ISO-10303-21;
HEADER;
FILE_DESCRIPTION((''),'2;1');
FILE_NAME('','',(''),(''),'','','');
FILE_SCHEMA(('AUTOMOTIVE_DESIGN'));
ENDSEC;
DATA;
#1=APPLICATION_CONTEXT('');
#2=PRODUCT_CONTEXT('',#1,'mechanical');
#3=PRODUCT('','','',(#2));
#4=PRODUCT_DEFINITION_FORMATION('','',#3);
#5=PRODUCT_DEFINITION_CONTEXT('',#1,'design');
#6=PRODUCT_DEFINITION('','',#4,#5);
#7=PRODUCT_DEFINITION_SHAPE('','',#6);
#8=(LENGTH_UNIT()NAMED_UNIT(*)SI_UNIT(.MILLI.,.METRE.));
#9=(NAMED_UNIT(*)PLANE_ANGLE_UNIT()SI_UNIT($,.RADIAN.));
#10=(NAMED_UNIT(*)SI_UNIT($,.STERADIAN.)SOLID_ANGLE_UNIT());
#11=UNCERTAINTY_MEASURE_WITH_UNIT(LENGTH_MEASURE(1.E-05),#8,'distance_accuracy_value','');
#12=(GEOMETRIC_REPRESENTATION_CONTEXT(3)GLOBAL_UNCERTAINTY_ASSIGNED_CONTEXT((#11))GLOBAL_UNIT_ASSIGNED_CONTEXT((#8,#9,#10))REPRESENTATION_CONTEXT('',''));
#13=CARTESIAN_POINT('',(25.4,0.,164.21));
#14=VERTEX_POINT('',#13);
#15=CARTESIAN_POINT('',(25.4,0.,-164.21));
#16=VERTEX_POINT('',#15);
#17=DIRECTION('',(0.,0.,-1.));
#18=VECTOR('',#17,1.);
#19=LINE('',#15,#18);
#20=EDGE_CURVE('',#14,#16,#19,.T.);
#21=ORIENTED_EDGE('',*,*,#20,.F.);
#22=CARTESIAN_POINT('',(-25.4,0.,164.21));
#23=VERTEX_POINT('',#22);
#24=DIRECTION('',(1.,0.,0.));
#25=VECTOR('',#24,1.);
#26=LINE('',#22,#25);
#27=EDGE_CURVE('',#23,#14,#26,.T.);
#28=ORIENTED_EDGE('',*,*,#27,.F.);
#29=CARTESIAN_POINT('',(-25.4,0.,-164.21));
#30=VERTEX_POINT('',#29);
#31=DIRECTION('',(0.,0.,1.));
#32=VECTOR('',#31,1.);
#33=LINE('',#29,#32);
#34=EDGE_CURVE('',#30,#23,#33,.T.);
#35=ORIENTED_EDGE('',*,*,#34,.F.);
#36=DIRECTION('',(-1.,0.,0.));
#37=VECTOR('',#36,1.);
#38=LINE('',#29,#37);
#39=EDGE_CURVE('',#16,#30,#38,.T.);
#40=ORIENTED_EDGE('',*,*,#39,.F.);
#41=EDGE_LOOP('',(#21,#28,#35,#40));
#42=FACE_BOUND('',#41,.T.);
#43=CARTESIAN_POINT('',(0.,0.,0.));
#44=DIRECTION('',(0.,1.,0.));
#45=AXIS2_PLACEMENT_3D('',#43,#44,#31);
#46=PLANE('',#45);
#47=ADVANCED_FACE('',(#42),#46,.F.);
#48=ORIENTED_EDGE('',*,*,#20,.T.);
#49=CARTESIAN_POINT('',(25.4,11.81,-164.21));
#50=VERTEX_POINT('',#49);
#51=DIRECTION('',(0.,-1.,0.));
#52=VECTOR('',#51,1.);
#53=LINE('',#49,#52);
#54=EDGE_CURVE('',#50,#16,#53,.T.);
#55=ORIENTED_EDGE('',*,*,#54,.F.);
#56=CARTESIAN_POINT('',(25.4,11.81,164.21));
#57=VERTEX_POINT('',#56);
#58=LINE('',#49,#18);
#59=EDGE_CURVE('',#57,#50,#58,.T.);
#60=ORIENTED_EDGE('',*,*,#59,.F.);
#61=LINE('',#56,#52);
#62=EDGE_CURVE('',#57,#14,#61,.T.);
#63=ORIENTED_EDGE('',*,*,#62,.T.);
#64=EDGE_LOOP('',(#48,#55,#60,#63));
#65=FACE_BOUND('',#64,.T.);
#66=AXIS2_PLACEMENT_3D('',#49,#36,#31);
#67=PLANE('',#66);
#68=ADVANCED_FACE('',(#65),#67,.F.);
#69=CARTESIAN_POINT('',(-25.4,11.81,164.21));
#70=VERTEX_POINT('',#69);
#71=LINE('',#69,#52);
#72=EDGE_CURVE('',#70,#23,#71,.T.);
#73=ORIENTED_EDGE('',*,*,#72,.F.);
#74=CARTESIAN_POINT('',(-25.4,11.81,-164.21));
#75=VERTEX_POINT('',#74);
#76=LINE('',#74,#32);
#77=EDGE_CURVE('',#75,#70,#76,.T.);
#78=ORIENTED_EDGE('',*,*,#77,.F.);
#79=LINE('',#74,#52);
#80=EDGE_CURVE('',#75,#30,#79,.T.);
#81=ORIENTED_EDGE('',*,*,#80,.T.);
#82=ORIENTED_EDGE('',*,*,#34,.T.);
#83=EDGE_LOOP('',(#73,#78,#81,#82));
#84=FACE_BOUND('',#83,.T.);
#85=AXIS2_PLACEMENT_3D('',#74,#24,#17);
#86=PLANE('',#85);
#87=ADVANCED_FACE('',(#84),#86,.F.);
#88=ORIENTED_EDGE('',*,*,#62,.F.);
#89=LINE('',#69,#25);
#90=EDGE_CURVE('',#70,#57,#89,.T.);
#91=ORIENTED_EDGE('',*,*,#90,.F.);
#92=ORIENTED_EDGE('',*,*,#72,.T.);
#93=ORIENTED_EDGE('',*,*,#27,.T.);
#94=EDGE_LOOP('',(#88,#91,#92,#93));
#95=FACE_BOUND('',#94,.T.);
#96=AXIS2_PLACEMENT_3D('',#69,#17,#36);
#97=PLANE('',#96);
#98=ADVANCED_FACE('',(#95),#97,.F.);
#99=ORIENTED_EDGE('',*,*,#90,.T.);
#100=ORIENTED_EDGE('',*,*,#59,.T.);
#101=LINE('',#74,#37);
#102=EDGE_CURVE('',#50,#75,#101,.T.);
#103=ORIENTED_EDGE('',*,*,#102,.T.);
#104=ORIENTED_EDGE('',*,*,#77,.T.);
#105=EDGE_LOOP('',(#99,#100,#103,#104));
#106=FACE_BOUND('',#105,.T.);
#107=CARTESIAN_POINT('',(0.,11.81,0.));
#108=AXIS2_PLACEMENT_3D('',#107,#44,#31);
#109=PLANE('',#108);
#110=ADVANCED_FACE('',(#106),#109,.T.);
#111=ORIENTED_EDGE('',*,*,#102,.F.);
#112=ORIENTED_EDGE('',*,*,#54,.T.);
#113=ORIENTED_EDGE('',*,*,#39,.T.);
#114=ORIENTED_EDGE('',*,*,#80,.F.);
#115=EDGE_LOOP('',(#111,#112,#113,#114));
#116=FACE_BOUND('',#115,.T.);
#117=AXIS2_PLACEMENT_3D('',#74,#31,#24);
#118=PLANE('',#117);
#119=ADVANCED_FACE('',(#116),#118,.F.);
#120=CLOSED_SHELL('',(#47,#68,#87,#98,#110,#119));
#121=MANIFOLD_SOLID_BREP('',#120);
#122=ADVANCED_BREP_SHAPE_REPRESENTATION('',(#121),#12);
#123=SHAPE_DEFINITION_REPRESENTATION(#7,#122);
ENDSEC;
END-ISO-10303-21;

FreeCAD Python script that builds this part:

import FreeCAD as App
import Part
import Sketcher
from FreeCAD import Vector
Q = App.Units.Quantity


def add_polygon(sketch, points):
    """Adds a closed chain of lines whose ends are joined by coincident constraints."""
    first, n = sketch.GeometryCount, len(points)
    for a, b in zip(points, points[1:] + points[:1]):
        sketch.addGeometry(Part.LineSegment(App.Vector(*a, 0), App.Vector(*b, 0)), False)
    for i in range(n):
        sketch.addConstraint(Sketcher.Constraint("Coincident", first + i, 2, first + (i + 1) % n, 1))

doc = App.newDocument("Part")
body = doc.addObject("PartDesign::Body", "Body")

sketch1 = doc.addObject("Sketcher::SketchObject", "Sketch")
body.addObject(sketch1)
sketch1.AttachmentSupport = (doc.XZ_Plane, [""])
sketch1.MapMode = "FlatFace"
add_polygon(sketch1, [(-25, -164), (-25, 164), (25, 164), (25, -164)])
sketch1.addConstraint([
    Sketcher.Constraint("Vertical", 0),
    Sketcher.Constraint("Horizontal", 1),
    Sketcher.Constraint("Vertical", 2),
    Sketcher.Constraint("Horizontal", 3),
    Sketcher.Constraint("Symmetric", 0, 2, 2, 2, -1, 1),
    Sketcher.Constraint("DistanceX", 1, 1, 1, 2, Q("2 in")),
    Sketcher.Constraint("DistanceY", 0, 1, 0, 2, Q("328.42 mm")),
])
pad1 = doc.addObject("PartDesign::Pad", "Pad")
body.addObject(pad1)
pad1.Profile = sketch1
pad1.Length = 11.81
pad1.Reversed = True

doc.recompute()
